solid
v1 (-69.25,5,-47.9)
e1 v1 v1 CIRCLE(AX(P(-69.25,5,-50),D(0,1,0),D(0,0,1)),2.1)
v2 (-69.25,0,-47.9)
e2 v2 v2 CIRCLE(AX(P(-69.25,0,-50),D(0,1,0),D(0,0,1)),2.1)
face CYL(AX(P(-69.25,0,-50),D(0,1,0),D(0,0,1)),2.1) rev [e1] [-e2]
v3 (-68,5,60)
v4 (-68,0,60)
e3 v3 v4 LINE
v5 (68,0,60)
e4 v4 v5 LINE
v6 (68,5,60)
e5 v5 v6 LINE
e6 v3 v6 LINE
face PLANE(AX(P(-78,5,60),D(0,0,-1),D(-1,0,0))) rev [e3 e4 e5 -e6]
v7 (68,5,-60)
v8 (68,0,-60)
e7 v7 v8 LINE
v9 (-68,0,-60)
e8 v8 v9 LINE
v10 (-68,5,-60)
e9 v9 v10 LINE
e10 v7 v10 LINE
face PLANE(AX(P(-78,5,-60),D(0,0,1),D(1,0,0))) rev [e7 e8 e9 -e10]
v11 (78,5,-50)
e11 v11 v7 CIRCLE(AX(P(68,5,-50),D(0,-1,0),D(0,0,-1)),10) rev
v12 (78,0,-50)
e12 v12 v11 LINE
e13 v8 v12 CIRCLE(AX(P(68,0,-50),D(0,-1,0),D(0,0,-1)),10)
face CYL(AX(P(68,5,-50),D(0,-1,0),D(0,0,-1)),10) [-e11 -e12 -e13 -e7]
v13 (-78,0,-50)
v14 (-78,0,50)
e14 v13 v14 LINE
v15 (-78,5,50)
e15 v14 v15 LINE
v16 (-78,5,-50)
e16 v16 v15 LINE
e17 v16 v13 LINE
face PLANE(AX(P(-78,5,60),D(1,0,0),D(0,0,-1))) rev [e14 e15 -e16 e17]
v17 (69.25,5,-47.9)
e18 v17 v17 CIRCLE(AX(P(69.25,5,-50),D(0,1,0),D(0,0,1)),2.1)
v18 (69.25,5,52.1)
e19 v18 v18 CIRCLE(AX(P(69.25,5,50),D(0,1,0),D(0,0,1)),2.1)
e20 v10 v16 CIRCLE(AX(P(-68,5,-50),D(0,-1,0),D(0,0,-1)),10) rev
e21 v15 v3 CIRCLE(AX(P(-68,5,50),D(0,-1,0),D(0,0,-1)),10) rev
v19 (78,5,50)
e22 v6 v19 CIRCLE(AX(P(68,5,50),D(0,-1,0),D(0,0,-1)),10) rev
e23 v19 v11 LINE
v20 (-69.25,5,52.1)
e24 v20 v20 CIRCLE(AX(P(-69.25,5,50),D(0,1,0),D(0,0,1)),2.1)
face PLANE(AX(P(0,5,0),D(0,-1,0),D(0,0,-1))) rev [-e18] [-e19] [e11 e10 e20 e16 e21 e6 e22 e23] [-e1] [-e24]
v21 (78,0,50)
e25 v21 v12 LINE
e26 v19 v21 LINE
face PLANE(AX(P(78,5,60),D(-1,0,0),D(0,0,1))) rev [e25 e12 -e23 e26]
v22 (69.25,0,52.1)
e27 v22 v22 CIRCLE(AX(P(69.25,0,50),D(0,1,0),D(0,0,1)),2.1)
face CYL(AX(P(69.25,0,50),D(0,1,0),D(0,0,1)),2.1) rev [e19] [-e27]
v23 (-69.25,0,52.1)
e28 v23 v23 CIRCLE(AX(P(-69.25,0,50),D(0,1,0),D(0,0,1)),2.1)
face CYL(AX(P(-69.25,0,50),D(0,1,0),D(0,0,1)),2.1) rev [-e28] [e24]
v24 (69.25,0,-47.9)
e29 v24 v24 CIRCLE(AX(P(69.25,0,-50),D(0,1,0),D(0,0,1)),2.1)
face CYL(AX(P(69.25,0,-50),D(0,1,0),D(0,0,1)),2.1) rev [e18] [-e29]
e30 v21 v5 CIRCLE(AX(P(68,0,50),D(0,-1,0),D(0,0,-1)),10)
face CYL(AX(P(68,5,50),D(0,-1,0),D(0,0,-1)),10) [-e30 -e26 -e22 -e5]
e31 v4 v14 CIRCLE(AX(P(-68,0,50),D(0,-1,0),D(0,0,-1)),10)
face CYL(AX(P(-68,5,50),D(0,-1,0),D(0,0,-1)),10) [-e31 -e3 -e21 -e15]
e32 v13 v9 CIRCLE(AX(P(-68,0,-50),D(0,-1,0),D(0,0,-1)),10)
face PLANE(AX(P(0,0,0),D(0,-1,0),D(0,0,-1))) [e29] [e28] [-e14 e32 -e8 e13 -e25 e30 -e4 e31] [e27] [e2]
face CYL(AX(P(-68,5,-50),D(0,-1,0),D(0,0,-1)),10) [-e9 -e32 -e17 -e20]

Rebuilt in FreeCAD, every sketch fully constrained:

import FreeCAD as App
import Part
import Sketcher


def edges_at(feature, points):
    """Names of the edges that pass closest to the given points."""
    edges = feature.Shape.Edges
    near = lambda p: min(range(len(edges)), key=lambda i: edges[i].distToShape(Part.Vertex(*p))[0])
    return sorted({f"Edge{near(p) + 1}" for p in points})

doc = App.newDocument("Part")
params = doc.addObject("Spreadsheet::Sheet", "Params")
for row, (alias, value) in enumerate([
    ("sketch1_width", "156 mm"),
    ("sketch1_height", "120 mm"),
    ("pad1_length", "5 mm"),
    ("sketch2_diameter", "4.2 mm"),
    ("fillet_radius", "10 mm"),
], start=1):
    params.set(f"A{row}", alias)
    params.set(f"B{row}", "=" + value)
    params.setAlias(f"B{row}", alias)

body = doc.addObject("PartDesign::Body", "Body")

sketch1 = body.newObject("Sketcher::SketchObject", "Sketch")
sketch1.AttachmentSupport = (doc.getObject("XZ_Plane"), [""])
sketch1.MapMode = "FlatFace"
sketch1.addGeometry([
    Part.LineSegment(App.Vector(-78, -60, 0), App.Vector(-78, 60, 0)),
    Part.LineSegment(App.Vector(-78, 60, 0), App.Vector(78, 60, 0)),
    Part.LineSegment(App.Vector(78, 60, 0), App.Vector(78, -60, 0)),
    Part.LineSegment(App.Vector(78, -60, 0), App.Vector(-78, -60, 0)),
], False)
sketch1.addConstraint([
    Sketcher.Constraint("Coincident", 0, 2, 1, 1),
    Sketcher.Constraint("Coincident", 1, 2, 2, 1),
    Sketcher.Constraint("Coincident", 2, 2, 3, 1),
    Sketcher.Constraint("Coincident", 3, 2, 0, 1),
    Sketcher.Constraint("Vertical", 0),
    Sketcher.Constraint("Horizontal", 1),
    Sketcher.Constraint("Vertical", 2),
    Sketcher.Constraint("Horizontal", 3),
    Sketcher.Constraint("Symmetric", 0, 2, 2, 2, -1, 1),
    Sketcher.Constraint("DistanceX", 1, 1, 1, 2, 156.0),
    Sketcher.Constraint("DistanceY", 0, 1, 0, 2, 120.0),
])
sketch1.setExpression("Constraints[9]", "Params.sketch1_width")
sketch1.setExpression("Constraints[10]", "Params.sketch1_height")
pad1 = body.newObject("PartDesign::Pad", "Pad")
pad1.Profile = sketch1
pad1.setExpression("Length", "Params.pad1_length")
pad1.Reversed = True

sketch2 = body.newObject("Sketcher::SketchObject", "Sketch001")
sketch2.AttachmentSupport = (doc.getObject("XZ_Plane"), [""])
sketch2.MapMode = "FlatFace"
sketch2.AttachmentOffset = App.Placement(App.Vector(0, 0, -5), App.Rotation())
sketch2.addGeometry([
    Part.Circle(App.Vector(-69.2, -50, 0), App.Vector(0, 0, 1), 2.1),
    Part.Circle(App.Vector(69.2, -50, 0), App.Vector(0, 0, 1), 2.1),
    Part.Circle(App.Vector(-69.2, 50, 0), App.Vector(0, 0, 1), 2.1),
    Part.Circle(App.Vector(69.2, 50, 0), App.Vector(0, 0, 1), 2.1),
], False)
sketch2.addConstraint([
    Sketcher.Constraint("Equal", 0, 1),
    Sketcher.Constraint("Equal", 1, 2),
    Sketcher.Constraint("Equal", 2, 3),
    Sketcher.Constraint("Symmetric", 1, 3, 2, 3, -1, 1),
    Sketcher.Constraint("Symmetric", 0, 3, 3, 3, -1, 1),
    Sketcher.Constraint("Symmetric", 0, 3, 1, 3, -2),
    Sketcher.Constraint("Diameter", 0, 4.2),
    Sketcher.Constraint("DistanceY", 0, 3, -1, 1, 50.0),
    Sketcher.Constraint("DistanceX", 0, 3, 1, 3, 138.5),
])
sketch2.setExpression("Constraints[6]", "Params.sketch2_diameter")
pocket1 = body.newObject("PartDesign::Pocket", "Pocket")
pocket1.Profile = sketch2
pocket1.Type = "ThroughAll"
pocket1.Reversed = True
doc.recompute()

fillet = body.newObject("PartDesign::Fillet", "Fillet")
fillet.Base = (pocket1, edges_at(pocket1, [
    (78, 2.5, 60),
    (-78, 2.5, 60),
    (-78, 2.5, -60),
    (78, 2.5, -60),
]))
fillet.setExpression("Radius", "Params.fillet_radius")

doc.recompute()
